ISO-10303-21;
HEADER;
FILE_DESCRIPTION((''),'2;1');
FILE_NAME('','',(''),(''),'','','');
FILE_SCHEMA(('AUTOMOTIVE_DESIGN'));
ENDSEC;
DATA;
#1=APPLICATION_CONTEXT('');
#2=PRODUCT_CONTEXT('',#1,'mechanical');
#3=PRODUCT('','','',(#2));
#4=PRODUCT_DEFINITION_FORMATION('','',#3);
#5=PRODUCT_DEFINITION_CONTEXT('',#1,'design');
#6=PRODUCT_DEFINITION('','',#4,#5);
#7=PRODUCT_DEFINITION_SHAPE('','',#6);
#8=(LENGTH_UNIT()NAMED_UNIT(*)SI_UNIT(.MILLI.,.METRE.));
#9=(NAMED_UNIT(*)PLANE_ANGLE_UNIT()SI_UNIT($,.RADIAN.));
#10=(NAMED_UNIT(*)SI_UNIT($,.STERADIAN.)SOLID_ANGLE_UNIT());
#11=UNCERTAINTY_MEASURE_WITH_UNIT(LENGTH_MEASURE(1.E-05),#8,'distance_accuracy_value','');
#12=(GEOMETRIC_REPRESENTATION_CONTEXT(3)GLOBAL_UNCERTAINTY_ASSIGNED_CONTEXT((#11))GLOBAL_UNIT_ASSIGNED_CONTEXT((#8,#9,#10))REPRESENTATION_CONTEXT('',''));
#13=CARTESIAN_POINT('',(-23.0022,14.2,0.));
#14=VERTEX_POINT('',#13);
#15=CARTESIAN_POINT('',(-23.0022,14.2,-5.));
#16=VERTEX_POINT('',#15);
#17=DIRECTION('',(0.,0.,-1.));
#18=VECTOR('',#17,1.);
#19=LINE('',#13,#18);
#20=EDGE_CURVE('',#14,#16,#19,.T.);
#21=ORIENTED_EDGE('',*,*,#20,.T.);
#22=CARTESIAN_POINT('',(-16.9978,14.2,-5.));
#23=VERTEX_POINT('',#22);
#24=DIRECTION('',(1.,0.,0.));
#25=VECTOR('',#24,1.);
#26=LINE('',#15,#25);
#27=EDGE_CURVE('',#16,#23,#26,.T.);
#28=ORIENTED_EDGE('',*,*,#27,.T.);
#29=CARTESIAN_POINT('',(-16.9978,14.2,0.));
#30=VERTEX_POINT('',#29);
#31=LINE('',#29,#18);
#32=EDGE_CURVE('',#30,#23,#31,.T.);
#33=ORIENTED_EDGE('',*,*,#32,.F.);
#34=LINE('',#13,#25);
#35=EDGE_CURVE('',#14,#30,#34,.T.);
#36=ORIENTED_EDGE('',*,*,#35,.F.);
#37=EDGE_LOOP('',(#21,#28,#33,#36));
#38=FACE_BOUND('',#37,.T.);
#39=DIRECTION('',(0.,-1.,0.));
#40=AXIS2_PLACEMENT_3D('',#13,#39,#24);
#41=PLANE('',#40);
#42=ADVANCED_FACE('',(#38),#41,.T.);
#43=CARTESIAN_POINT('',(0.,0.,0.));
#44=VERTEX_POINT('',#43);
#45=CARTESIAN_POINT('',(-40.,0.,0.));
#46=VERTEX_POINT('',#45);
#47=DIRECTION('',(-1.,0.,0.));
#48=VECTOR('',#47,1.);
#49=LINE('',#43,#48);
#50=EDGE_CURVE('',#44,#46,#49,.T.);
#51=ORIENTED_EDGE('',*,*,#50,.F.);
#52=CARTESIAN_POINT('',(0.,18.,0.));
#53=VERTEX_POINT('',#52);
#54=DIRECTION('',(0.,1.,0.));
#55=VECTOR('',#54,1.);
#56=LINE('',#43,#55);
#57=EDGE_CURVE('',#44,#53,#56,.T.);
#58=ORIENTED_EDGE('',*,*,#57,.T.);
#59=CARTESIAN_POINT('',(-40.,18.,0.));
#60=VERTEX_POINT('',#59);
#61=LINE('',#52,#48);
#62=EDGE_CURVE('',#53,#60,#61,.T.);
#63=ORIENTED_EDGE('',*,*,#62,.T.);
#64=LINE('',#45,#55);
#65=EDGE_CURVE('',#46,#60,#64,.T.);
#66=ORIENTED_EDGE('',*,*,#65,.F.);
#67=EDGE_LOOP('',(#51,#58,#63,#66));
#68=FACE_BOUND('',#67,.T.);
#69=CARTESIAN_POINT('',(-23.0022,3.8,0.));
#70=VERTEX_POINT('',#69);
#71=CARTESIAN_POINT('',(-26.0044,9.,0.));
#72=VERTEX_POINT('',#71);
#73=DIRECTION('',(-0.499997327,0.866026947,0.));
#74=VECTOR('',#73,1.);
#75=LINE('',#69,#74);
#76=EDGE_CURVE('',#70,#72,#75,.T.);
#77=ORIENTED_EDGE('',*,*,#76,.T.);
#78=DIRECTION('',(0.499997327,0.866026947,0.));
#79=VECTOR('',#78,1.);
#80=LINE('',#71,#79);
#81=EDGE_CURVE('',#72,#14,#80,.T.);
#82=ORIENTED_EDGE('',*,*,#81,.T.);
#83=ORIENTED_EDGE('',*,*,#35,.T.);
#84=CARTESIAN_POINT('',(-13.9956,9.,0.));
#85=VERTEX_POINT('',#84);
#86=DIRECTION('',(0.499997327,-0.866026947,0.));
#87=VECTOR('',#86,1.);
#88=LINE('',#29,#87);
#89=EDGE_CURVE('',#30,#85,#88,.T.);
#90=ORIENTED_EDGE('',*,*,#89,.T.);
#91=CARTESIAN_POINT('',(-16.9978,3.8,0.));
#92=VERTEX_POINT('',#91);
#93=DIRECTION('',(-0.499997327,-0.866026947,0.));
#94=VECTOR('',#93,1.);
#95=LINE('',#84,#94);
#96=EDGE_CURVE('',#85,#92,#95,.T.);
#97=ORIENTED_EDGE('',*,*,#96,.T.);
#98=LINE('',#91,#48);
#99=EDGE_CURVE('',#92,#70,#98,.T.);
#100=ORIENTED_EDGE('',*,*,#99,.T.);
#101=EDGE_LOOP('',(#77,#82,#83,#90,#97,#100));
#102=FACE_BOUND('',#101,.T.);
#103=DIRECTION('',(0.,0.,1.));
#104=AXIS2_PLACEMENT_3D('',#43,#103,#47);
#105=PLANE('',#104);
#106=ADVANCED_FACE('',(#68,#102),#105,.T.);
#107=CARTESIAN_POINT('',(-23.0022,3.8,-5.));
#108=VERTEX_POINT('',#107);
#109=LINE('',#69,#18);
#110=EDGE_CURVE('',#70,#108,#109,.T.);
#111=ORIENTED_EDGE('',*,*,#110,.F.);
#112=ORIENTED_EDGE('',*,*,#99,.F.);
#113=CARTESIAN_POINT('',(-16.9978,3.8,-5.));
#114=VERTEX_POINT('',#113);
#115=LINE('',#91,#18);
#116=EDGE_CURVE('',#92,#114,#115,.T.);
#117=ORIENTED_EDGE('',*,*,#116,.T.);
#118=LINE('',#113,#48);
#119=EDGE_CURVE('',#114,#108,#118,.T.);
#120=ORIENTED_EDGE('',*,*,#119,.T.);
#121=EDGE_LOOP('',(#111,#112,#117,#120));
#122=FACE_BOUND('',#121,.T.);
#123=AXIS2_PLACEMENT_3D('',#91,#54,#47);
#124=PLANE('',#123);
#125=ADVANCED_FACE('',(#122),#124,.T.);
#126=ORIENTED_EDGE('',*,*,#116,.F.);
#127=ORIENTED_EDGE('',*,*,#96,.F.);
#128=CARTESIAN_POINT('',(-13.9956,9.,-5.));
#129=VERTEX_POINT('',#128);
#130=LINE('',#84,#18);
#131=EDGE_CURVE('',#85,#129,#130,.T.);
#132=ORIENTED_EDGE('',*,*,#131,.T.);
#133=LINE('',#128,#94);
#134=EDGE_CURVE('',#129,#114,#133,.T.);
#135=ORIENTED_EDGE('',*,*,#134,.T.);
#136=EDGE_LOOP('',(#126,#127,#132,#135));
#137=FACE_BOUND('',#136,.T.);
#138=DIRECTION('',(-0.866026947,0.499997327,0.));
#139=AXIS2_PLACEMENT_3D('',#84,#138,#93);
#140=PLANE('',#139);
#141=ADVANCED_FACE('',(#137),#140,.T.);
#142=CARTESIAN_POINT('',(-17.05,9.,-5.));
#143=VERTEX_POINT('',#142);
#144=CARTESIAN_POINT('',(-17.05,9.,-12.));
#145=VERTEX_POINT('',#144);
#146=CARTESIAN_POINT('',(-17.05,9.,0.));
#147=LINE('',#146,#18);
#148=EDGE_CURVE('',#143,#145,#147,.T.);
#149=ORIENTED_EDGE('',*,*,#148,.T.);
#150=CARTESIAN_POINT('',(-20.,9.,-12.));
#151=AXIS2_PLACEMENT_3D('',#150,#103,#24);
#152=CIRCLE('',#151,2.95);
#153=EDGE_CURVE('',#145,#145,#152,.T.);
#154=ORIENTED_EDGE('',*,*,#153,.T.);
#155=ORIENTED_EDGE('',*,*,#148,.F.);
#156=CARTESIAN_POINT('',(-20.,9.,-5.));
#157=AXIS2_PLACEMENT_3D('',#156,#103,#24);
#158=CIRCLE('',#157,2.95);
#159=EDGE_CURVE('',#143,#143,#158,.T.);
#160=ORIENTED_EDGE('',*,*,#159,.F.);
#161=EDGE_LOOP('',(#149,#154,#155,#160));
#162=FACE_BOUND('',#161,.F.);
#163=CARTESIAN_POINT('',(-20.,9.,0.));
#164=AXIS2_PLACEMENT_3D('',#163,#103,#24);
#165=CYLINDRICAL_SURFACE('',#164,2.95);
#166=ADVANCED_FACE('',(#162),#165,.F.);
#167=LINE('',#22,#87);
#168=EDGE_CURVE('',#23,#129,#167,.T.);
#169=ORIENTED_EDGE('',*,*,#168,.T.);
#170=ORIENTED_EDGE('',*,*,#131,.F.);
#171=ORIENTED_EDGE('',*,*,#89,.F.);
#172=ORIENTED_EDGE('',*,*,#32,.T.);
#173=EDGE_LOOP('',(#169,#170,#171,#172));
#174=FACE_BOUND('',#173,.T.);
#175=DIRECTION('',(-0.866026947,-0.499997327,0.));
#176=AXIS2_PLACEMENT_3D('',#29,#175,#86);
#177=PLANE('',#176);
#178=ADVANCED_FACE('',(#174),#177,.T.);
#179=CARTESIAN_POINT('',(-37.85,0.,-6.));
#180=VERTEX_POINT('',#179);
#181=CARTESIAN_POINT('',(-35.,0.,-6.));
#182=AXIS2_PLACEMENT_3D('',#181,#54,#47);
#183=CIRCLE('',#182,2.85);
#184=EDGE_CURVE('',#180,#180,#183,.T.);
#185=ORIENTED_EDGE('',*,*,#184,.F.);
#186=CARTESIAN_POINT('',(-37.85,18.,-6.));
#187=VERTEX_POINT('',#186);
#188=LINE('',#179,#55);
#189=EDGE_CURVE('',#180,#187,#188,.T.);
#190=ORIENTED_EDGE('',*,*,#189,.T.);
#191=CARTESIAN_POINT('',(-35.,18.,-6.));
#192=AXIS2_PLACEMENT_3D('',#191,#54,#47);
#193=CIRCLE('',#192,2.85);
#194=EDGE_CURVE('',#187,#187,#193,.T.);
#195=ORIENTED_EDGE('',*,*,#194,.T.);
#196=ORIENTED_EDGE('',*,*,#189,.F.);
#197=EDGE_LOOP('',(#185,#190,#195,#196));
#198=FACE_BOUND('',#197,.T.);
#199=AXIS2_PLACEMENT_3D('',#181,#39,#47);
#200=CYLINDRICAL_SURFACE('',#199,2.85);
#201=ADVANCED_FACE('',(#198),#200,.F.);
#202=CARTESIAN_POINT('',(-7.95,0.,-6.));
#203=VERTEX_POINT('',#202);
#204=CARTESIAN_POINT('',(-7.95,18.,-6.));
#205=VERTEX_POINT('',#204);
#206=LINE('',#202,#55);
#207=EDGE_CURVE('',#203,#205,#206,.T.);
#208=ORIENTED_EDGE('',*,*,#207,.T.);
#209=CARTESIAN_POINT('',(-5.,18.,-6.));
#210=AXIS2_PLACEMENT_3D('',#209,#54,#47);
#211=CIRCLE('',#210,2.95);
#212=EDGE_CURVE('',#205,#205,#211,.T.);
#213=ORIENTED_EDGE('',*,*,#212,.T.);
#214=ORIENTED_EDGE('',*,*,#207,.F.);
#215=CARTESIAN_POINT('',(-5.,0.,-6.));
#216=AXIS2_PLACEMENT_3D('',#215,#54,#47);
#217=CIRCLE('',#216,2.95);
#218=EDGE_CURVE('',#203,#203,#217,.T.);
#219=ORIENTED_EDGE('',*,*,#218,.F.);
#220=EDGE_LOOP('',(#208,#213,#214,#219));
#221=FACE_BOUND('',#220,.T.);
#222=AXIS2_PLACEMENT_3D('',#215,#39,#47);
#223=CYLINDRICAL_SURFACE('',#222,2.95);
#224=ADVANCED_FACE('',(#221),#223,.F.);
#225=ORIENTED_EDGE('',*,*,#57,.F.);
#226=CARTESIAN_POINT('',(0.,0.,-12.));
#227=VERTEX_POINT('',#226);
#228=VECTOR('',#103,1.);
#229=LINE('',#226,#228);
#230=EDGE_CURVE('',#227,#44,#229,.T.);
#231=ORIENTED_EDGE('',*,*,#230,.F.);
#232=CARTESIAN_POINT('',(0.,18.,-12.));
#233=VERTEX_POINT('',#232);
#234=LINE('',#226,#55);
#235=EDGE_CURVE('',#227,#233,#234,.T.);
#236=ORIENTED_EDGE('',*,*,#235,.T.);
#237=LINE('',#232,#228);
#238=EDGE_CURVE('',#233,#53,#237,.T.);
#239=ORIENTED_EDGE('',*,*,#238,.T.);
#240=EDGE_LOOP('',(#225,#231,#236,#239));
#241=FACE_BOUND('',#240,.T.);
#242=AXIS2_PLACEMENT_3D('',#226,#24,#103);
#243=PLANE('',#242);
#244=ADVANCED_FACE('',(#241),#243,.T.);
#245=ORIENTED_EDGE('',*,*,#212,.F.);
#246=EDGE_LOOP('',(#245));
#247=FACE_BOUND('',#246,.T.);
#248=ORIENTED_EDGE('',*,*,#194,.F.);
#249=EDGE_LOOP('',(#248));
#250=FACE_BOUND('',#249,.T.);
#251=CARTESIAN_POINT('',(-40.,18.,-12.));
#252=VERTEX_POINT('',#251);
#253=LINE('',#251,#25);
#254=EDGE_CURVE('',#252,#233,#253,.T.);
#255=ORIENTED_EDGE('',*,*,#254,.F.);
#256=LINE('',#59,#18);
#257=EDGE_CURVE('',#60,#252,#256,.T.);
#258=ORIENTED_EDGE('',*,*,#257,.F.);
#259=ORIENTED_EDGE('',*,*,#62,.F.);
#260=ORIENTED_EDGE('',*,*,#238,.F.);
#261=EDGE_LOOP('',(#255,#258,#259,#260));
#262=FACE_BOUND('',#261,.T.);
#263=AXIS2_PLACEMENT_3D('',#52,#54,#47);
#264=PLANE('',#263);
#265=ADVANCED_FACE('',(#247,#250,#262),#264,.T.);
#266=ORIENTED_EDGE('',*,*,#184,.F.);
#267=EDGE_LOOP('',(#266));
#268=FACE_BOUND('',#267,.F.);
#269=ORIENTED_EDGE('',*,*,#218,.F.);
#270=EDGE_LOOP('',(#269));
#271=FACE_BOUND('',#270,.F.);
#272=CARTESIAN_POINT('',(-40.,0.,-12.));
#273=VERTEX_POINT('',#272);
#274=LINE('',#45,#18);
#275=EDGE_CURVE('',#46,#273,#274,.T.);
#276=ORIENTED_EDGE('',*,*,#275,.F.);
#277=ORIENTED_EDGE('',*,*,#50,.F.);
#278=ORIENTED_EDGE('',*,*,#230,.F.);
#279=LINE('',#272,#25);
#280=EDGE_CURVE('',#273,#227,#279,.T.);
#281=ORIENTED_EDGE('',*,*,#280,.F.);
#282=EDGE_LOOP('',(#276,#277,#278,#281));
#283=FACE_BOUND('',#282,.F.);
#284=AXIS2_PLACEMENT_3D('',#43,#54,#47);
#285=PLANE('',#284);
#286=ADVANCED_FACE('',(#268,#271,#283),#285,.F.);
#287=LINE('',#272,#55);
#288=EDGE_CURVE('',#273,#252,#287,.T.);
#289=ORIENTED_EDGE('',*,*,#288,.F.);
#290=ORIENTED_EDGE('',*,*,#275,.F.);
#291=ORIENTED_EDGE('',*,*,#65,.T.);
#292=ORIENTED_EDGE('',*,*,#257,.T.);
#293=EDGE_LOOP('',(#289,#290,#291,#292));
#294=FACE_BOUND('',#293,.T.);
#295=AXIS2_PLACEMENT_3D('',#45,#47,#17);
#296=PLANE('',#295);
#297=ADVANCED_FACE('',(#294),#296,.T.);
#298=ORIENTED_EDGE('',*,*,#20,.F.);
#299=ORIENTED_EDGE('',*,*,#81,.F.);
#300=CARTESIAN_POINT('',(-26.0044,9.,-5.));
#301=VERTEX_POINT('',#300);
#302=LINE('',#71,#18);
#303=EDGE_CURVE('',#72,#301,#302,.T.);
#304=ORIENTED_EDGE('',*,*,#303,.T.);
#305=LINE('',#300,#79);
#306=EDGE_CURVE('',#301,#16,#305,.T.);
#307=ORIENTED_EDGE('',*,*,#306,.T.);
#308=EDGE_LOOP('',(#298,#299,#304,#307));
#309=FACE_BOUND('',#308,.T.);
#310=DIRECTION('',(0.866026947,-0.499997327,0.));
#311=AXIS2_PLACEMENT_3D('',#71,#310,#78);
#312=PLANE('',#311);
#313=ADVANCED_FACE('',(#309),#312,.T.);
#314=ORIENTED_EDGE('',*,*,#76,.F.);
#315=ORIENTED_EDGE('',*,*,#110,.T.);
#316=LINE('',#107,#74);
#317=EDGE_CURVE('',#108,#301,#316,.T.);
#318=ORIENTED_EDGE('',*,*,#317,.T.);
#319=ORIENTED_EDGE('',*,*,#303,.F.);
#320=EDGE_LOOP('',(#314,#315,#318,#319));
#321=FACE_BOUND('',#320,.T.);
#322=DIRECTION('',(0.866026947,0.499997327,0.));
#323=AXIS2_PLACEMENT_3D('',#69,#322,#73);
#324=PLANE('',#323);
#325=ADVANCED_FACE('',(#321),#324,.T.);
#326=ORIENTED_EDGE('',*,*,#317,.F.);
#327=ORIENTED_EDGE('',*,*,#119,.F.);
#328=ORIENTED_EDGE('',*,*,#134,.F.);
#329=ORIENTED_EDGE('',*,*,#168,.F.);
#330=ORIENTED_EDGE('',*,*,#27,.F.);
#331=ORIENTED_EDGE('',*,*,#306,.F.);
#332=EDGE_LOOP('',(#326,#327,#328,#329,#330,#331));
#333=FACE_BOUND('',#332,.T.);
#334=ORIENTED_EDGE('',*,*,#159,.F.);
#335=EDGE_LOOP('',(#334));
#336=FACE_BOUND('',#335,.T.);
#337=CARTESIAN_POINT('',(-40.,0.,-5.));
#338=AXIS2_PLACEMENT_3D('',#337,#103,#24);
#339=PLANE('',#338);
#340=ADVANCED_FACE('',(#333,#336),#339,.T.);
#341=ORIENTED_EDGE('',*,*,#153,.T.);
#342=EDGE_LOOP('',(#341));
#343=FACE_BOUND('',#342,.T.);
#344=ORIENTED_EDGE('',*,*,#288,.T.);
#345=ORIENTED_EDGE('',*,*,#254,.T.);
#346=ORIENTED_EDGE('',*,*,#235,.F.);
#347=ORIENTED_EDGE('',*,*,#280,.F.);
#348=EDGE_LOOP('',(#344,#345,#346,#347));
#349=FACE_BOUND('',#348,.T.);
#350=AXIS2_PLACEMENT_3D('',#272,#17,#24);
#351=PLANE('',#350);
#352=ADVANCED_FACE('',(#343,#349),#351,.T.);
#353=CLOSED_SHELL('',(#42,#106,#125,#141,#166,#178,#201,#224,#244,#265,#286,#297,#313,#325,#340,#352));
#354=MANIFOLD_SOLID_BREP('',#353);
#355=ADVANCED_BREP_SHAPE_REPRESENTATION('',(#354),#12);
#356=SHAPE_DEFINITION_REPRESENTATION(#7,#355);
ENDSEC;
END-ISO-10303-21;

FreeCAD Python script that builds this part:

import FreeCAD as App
import Part
import Sketcher
from FreeCAD import Vector
Q = App.Units.Quantity

doc = App.newDocument("Part")
body = doc.addObject("PartDesign::Body", "Body")

# Sketch on XZ plane
sketch1 = body.newObject("Sketcher::SketchObject", "Sketch")
sketch1.AttachmentSupport = (doc.getObject("XZ_Plane"), [""])
sketch1.MapMode = "FlatFace"
sketch1.addGeometry([
    Part.LineSegment(Vector(-40, 0, 0), Vector(0, 0, 0)),  # 0
    Part.LineSegment(Vector(0, 0, 0), Vector(0, -12, 0)),  # 1
    Part.LineSegment(Vector(0, -12, 0), Vector(-40, -12, 0)),  # 2
    Part.LineSegment(Vector(-40, -12, 0), Vector(-40, 0, 0)),  # 3
    Part.Circle(Vector(-5, -6, 0), Vector(0, 0, 1), 3),  # 4
    Part.Circle(Vector(-35, -6, 0), Vector(0, 0, 1), 2.9),  # 5
], False)
sketch1.addConstraint([
    Sketcher.Constraint("Coincident", 0, 2, 1, 1),
    Sketcher.Constraint("Coincident", 1, 2, 2, 1),
    Sketcher.Constraint("Coincident", 2, 2, 3, 1),
    Sketcher.Constraint("Coincident", 3, 2, 0, 1),
    Sketcher.Constraint("Horizontal", 0),
    Sketcher.Constraint("Vertical", 1),
    Sketcher.Constraint("Horizontal", 2),
    Sketcher.Constraint("Vertical", 3),
    Sketcher.Constraint("Coincident", 0, 2, -1, 1),
    Sketcher.Constraint("Horizontal", 4, 3, 5, 3),
    Sketcher.Constraint("Diameter", 4, Q("5.9 mm")),
    Sketcher.Constraint("Diameter", 5, Q("5.7 mm")),
    Sketcher.Constraint("DistanceX", 0, 1, 0, 2, Q("40 mm")),
    Sketcher.Constraint("DistanceY", 1, 2, 1, 1, Q("12 mm")),
    Sketcher.Constraint("DistanceX", 4, 3, -1, 1, Q("5 mm")),
    Sketcher.Constraint("DistanceY", 4, 3, -1, 1, Q("6 mm")),
    Sketcher.Constraint("DistanceX", 2, 2, 5, 3, Q("5 mm")),
])
pad1 = body.newObject("PartDesign::Pad", "Pad")
pad1.Profile = sketch1
pad1.Length = 18
pad1.Reversed = True

# Sketch on XY plane
sketch2 = body.newObject("Sketcher::SketchObject", "Sketch001")
sketch2.AttachmentSupport = (doc.getObject("XY_Plane"), [""])
sketch2.MapMode = "FlatFace"
sketch2.addGeometry(Part.Circle(Vector(-20, 9, 0), Vector(0, 0, 1), 3), False)
sketch2.addConstraint([
    Sketcher.Constraint("Diameter", 0, Q("5.9 mm")),
    Sketcher.Constraint("DistanceX", 0, 3, -1, 1, Q("20 mm")),
    Sketcher.Constraint("DistanceY", -1, 1, 0, 3, Q("9 mm")),
])
pocket1 = body.newObject("PartDesign::Pocket", "Pocket")
pocket1.Profile = sketch2
pocket1.Type = "UpToFirst"

# Sketch on XY plane
sketch3 = body.newObject("Sketcher::SketchObject", "Sketch002")
sketch3.AttachmentSupport = (doc.getObject("XY_Plane"), [""])
sketch3.MapMode = "FlatFace"
sketch3.addGeometry([
    Part.LineSegment(Vector(-26, 9, 0), Vector(-23, 3.8, 0)),  # 0
    Part.LineSegment(Vector(-23, 3.8, 0), Vector(-17, 3.8, 0)),  # 1
    Part.LineSegment(Vector(-17, 3.8, 0), Vector(-14, 9, 0)),  # 2
    Part.LineSegment(Vector(-14, 9, 0), Vector(-17, 14.2, 0)),  # 3
    Part.LineSegment(Vector(-17, 14.2, 0), Vector(-23, 14.2, 0)),  # 4
    Part.LineSegment(Vector(-23, 14.2, 0), Vector(-26, 9, 0)),  # 5
    Part.Circle(Vector(-20, 9, 0), Vector(0, 0, 1), 3),  # 6
], False)
sketch3.addConstraint([
    Sketcher.Constraint("Coincident", 0, 2, 1, 1),
    Sketcher.Constraint("Coincident", 1, 2, 2, 1),
    Sketcher.Constraint("Coincident", 2, 2, 3, 1),
    Sketcher.Constraint("Coincident", 3, 2, 4, 1),
    Sketcher.Constraint("Coincident", 4, 2, 5, 1),
    Sketcher.Constraint("Coincident", 5, 2, 0, 1),
    Sketcher.Constraint("Horizontal", 1),
    Sketcher.Constraint("Horizontal", 4),
    Sketcher.Constraint("Parallel", 0, 3),
    Sketcher.Constraint("Parallel", 2, 5),
    Sketcher.Constraint("Horizontal", 6, 3, 2, 2),
    Sketcher.Constraint("Horizontal", 2, 2, 5, 2),
    Sketcher.Constraint("Vertical", 1, 2, 3, 2),
    Sketcher.Constraint("Vertical", 0, 2, 4, 2),
    Sketcher.Constraint("Diameter", 6, Q("5.9 mm")),
    Sketcher.Constraint("DistanceY", 1, 2, 3, 2, Q("10.4 mm")),
    Sketcher.Constraint("Angle", 0, Q("-60.0002 deg")),
    Sketcher.Constraint("DistanceX", 6, 3, -1, 1, Q("20 mm")),
    Sketcher.Constraint("DistanceY", -1, 1, 6, 3, Q("9 mm")),
    Sketcher.Constraint("DistanceX", 1, 1, 1, 2, Q("6.0044 mm")),
    Sketcher.Constraint("DistanceX", 0, 2, -1, 1, Q("23.0022 mm")),
])
pocket2 = body.newObject("PartDesign::Pocket", "Pocket001")
pocket2.Profile = sketch3
pocket2.Length = 5

doc.recompute()
